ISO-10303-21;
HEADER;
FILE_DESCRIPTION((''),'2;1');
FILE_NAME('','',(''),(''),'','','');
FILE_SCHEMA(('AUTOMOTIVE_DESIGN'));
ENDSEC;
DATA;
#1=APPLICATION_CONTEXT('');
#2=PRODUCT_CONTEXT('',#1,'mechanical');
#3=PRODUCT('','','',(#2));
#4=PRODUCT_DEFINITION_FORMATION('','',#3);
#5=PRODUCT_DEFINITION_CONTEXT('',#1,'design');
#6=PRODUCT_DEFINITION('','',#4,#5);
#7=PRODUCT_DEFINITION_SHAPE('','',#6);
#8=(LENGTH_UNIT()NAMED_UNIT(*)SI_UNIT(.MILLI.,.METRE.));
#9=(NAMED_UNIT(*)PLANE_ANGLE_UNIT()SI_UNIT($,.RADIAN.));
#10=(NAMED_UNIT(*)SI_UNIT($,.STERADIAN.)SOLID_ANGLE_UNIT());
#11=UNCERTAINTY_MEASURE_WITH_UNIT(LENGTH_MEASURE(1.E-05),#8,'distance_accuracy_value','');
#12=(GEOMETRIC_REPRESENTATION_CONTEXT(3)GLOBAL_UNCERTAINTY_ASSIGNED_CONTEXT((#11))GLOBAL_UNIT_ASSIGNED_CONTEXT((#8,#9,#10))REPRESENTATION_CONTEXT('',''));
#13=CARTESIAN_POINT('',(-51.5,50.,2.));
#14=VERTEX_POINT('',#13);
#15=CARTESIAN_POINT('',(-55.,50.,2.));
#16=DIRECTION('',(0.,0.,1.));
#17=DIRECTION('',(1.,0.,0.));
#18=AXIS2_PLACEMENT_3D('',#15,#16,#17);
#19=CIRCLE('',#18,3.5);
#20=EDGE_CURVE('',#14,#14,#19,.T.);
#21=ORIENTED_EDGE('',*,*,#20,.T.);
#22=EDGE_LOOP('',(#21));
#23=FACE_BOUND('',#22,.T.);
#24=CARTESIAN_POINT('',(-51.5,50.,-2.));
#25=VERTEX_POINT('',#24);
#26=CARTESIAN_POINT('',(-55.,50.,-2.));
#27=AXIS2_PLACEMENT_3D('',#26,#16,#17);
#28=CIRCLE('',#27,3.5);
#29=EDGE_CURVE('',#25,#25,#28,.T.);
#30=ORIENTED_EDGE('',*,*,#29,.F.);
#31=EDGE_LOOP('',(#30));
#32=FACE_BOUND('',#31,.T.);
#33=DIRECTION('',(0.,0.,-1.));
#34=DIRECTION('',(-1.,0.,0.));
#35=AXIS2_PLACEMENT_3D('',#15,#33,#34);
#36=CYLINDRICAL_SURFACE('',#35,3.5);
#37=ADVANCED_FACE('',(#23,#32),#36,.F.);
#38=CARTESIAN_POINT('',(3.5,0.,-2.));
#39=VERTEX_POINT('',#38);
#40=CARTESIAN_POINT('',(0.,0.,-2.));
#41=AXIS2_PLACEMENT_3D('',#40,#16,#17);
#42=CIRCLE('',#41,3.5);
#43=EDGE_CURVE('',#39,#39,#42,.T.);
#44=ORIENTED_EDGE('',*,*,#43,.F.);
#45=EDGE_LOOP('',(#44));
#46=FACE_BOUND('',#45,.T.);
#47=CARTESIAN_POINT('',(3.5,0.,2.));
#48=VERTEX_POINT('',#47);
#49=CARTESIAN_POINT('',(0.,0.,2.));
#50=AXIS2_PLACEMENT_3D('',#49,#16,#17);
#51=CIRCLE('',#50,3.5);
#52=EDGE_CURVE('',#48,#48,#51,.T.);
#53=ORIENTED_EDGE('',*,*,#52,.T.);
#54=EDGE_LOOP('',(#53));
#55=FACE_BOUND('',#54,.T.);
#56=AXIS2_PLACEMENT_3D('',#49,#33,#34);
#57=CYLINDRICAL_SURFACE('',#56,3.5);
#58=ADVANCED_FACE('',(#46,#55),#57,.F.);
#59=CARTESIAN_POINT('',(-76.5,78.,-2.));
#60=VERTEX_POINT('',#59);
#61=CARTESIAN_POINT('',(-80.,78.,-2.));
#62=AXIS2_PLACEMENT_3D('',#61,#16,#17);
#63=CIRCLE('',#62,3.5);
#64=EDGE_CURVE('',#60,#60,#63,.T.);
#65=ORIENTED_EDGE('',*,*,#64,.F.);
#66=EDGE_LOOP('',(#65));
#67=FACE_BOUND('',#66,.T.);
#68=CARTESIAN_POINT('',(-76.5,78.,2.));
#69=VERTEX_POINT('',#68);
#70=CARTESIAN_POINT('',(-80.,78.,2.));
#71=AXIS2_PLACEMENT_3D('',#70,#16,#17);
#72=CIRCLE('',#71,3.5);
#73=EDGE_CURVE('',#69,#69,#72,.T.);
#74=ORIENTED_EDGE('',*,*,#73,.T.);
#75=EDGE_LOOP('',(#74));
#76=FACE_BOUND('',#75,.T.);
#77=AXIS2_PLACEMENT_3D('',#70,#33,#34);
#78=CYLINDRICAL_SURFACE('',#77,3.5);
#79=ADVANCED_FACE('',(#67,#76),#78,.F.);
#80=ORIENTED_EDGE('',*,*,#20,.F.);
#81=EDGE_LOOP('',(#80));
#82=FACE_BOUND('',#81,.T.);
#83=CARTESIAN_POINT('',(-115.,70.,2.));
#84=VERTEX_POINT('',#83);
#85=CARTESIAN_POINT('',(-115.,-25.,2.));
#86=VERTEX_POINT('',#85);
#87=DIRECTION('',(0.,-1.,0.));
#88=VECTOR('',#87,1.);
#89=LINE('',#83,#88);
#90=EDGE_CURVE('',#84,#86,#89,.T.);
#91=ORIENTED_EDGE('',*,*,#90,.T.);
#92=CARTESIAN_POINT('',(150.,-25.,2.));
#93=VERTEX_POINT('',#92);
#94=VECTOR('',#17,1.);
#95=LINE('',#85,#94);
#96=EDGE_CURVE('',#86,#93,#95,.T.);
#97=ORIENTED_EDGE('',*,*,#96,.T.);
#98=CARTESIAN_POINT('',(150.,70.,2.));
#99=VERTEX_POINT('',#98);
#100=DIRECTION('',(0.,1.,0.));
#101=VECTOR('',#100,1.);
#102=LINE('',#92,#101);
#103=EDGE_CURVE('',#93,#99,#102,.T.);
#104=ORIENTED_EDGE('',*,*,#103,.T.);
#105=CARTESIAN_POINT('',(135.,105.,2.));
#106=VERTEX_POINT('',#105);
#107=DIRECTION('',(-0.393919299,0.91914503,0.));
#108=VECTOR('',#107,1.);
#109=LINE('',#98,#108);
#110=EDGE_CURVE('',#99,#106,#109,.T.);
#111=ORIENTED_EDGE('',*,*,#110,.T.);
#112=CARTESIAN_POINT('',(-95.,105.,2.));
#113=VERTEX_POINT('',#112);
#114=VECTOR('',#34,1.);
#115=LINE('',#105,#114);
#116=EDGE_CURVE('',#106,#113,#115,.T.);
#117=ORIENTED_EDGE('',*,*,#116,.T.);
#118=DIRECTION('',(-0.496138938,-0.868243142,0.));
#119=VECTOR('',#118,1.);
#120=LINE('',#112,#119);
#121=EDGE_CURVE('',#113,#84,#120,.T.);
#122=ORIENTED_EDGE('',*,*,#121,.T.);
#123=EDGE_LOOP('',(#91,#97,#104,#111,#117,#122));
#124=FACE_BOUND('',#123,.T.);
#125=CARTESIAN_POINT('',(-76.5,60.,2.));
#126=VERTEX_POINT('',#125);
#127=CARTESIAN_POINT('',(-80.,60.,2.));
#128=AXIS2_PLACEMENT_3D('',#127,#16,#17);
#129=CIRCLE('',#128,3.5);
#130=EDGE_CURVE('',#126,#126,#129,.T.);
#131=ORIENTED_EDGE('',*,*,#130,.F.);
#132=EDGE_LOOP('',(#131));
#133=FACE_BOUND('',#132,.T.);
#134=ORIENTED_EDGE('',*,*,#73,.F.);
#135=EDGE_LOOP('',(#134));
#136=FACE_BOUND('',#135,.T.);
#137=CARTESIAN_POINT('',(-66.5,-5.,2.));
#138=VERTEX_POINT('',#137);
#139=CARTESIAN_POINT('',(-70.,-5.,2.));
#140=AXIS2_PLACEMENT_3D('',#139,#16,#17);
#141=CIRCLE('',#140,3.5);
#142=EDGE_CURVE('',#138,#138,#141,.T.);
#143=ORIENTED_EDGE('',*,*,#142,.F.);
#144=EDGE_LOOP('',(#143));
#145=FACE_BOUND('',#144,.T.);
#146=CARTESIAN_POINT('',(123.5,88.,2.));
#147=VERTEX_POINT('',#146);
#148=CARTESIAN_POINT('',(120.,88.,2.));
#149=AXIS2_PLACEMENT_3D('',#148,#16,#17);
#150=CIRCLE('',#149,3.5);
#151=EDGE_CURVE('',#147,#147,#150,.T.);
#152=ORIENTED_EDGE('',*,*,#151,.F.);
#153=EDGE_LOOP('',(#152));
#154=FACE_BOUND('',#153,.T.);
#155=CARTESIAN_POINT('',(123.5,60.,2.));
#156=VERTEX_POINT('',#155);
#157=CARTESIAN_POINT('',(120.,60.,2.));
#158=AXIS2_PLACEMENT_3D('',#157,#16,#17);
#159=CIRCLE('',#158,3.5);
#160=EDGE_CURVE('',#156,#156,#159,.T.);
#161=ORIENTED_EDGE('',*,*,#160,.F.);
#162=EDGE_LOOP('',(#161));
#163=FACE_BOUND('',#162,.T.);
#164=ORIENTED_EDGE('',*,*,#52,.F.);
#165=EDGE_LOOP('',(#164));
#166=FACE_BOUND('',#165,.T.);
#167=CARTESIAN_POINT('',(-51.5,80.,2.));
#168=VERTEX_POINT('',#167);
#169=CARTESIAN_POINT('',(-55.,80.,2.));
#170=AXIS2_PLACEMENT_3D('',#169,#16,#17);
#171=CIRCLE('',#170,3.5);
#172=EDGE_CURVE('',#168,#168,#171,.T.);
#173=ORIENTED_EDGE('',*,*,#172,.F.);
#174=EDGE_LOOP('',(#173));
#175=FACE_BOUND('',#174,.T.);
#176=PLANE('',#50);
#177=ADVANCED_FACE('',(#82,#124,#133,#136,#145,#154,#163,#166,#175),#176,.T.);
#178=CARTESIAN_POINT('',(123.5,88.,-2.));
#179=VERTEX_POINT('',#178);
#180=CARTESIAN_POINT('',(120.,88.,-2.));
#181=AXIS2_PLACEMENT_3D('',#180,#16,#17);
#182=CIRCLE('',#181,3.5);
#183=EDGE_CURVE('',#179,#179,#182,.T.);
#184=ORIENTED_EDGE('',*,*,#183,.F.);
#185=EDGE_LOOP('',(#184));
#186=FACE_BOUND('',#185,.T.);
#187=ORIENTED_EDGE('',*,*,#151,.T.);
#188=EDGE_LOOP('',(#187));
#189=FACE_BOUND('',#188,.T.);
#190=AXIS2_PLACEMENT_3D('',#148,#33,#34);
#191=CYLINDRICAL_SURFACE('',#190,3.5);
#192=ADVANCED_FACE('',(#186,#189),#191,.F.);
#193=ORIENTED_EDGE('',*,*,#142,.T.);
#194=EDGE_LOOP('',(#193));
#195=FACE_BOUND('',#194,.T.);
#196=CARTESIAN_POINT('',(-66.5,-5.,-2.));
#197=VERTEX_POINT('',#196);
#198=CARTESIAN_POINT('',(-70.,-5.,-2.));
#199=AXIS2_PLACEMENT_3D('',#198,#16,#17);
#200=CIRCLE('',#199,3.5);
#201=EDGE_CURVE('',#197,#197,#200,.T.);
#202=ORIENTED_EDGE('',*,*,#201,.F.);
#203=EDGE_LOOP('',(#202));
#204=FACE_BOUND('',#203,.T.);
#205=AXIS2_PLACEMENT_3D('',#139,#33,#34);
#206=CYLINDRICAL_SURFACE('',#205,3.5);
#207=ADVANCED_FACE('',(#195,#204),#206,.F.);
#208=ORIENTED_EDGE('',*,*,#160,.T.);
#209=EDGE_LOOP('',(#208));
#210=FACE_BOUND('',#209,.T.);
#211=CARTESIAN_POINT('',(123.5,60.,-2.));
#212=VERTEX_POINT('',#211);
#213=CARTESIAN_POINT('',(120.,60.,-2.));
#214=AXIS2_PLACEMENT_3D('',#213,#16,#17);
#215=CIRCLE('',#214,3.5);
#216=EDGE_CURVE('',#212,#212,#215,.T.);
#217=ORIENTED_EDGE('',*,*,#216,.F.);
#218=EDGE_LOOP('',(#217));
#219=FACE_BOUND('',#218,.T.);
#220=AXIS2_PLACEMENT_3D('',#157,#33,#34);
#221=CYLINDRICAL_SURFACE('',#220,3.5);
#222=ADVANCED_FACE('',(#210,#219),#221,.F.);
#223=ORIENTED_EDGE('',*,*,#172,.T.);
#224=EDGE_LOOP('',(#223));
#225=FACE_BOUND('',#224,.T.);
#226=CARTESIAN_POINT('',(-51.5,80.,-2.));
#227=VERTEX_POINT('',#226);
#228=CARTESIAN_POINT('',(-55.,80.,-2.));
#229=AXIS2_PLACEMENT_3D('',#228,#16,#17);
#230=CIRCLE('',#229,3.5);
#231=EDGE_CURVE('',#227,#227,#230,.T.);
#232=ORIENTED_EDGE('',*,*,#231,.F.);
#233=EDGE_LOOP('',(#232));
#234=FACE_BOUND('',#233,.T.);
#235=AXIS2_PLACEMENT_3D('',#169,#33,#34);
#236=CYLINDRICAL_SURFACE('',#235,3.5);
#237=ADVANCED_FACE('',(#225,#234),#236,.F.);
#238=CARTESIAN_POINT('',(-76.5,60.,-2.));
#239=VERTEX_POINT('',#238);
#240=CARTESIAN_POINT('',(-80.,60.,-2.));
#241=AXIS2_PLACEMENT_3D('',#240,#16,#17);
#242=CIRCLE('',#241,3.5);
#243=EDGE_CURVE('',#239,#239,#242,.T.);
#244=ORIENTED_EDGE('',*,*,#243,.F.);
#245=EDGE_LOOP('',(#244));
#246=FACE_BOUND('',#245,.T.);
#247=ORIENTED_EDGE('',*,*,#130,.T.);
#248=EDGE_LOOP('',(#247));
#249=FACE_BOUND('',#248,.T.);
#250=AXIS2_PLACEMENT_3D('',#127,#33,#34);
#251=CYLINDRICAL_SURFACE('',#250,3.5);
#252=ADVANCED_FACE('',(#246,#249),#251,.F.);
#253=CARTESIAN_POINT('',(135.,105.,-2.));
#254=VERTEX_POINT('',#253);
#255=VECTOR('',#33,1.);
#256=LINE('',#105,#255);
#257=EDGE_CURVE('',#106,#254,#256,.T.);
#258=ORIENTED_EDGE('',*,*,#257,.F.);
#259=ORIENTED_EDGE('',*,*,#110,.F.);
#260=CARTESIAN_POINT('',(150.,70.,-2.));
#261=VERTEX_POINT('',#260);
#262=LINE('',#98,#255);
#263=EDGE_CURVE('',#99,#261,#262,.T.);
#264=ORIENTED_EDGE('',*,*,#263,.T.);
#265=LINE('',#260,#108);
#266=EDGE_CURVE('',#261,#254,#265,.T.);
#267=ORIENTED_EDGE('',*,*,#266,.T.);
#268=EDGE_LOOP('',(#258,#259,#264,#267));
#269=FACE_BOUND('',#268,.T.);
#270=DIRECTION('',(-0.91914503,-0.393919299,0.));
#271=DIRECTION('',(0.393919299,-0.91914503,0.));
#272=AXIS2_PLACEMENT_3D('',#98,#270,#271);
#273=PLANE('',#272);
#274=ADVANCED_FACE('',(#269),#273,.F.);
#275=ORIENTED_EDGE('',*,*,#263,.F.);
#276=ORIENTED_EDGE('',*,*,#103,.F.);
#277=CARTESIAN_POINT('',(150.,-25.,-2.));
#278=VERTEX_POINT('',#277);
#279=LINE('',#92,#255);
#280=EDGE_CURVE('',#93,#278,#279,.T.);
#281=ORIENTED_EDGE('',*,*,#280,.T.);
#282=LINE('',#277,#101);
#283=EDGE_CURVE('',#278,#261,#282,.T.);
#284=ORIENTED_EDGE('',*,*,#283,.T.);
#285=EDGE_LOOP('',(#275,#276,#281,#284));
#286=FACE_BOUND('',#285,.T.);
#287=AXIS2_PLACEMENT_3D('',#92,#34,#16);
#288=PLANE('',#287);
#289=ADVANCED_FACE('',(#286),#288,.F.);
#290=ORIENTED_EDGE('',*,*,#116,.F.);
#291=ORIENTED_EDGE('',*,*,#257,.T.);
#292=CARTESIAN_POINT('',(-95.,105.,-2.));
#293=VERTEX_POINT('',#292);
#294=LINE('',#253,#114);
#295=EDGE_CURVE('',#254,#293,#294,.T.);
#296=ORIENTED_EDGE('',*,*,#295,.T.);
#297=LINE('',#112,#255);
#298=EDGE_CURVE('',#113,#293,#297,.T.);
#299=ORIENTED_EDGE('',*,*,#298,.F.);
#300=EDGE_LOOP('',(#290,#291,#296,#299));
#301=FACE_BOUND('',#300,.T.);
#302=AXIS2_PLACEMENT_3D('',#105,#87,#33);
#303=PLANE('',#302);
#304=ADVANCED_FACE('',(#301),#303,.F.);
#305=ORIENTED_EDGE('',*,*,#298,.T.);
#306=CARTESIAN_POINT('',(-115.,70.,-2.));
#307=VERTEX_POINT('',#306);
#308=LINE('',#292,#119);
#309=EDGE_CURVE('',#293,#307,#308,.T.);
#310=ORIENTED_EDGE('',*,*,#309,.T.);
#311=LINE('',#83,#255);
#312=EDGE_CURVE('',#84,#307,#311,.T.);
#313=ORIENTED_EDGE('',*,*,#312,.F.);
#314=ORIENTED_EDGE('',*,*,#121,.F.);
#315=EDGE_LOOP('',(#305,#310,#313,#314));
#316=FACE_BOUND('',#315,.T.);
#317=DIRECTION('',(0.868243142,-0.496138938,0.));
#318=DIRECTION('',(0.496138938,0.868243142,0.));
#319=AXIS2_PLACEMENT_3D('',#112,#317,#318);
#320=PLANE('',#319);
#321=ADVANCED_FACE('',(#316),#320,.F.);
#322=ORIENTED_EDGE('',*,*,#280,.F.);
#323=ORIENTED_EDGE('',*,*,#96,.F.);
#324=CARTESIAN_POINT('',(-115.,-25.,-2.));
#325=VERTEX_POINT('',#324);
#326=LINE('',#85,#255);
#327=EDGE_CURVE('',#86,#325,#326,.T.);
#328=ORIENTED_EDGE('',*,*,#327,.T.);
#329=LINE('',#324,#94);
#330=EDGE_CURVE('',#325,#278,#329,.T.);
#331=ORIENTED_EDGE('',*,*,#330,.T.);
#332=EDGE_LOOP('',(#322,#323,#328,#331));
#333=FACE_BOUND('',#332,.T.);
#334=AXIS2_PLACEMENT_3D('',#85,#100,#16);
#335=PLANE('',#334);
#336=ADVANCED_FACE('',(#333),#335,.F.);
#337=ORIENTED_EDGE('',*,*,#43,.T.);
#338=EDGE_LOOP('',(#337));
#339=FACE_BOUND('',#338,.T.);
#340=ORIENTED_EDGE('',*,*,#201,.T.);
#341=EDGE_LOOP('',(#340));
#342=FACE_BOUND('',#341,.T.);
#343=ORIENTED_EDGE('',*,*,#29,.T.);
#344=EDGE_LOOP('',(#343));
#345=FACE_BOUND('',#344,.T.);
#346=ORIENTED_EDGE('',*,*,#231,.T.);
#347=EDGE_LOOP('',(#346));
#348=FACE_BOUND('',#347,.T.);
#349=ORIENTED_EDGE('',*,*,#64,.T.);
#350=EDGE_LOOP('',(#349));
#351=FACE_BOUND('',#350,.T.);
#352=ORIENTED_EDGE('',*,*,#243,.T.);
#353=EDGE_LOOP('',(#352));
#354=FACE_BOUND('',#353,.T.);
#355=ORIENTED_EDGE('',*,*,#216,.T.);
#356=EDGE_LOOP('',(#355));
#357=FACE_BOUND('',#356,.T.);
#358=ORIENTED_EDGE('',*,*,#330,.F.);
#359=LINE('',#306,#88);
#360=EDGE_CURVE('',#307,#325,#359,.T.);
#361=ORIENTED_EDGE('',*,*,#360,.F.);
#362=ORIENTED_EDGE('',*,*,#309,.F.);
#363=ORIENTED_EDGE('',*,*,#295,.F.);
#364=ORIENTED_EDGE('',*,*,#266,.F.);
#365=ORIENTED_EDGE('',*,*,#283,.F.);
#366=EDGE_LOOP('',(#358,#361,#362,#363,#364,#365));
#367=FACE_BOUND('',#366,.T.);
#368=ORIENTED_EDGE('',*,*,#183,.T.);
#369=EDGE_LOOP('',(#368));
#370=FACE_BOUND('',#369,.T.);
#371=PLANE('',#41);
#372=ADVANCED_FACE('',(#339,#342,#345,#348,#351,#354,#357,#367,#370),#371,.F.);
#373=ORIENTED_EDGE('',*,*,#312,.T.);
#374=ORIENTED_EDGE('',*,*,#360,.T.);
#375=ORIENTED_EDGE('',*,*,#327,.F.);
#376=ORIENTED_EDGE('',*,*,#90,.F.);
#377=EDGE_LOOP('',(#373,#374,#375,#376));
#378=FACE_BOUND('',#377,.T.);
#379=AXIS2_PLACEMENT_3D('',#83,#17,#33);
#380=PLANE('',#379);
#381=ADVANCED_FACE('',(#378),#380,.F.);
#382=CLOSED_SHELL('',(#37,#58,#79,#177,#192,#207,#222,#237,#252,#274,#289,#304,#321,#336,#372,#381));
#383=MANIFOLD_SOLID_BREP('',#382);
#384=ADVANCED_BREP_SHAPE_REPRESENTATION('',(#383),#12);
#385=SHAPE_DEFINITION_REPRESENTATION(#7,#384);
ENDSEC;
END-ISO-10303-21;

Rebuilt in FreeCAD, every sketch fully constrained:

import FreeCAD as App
import Part
import Sketcher


def add_polygon(sketch, points):
    """Adds a closed chain of lines whose ends are joined by coincident constraints."""
    first, n = sketch.GeometryCount, len(points)
    for a, b in zip(points, points[1:] + points[:1]):
        sketch.addGeometry(Part.LineSegment(App.Vector(*a, 0), App.Vector(*b, 0)), False)
    for i in range(n):
        sketch.addConstraint(Sketcher.Constraint("Coincident", first + i, 2, first + (i + 1) % n, 1))

doc = App.newDocument("Part")
body = doc.addObject("PartDesign::Body", "Body")

# Sketch on XY plane
sketch1 = body.newObject("Sketcher::SketchObject", "Sketch")
sketch1.AttachmentSupport = (doc.getObject("XY_Plane"), [""])
sketch1.MapMode = "FlatFace"
add_polygon(sketch1, [(-115, -25), (150, -25), (150, 70), (135, 105), (-95, 105), (-115, 70)])  # lines 0-5
sketch1.addGeometry(Part.Circle(App.Vector(-70, -5, 0), App.Vector(0, 0, 1), 3.5), False)  # 6
sketch1.addGeometry(Part.Circle(App.Vector(0, 0, 0), App.Vector(0, 0, 1), 3.5), False)  # 7
sketch1.addGeometry(Part.Circle(App.Vector(-55, 50, 0), App.Vector(0, 0, 1), 3.5), False)  # 8
sketch1.addGeometry(Part.Circle(App.Vector(-80, 60, 0), App.Vector(0, 0, 1), 3.5), False)  # 9
sketch1.addGeometry(Part.Circle(App.Vector(-80, 78, 0), App.Vector(0, 0, 1), 3.5), False)  # 10
sketch1.addGeometry(Part.Circle(App.Vector(-55, 80, 0), App.Vector(0, 0, 1), 3.5), False)  # 11
sketch1.addGeometry(Part.Circle(App.Vector(120, 60, 0), App.Vector(0, 0, 1), 3.5), False)  # 12
sketch1.addGeometry(Part.Circle(App.Vector(120, 88, 0), App.Vector(0, 0, 1), 3.5), False)  # 13
sketch1.addConstraint([
    Sketcher.Constraint("Horizontal", 0),
    Sketcher.Constraint("Vertical", 1),
    Sketcher.Constraint("Horizontal", 3),
    Sketcher.Constraint("Vertical", 5),
    Sketcher.Constraint("Coincident", 7, 3, -1, 1),
    Sketcher.Constraint("Equal", 6, 7),
    Sketcher.Constraint("Equal", 7, 8),
    Sketcher.Constraint("Equal", 8, 9),
    Sketcher.Constraint("Equal", 9, 10),
    Sketcher.Constraint("Equal", 10, 11),
    Sketcher.Constraint("Equal", 11, 12),
    Sketcher.Constraint("Equal", 12, 13),
    Sketcher.Constraint("Horizontal", 9, 3, 12, 3),
    Sketcher.Constraint("Horizontal", 1, 2, 4, 2),
    Sketcher.Constraint("Vertical", 9, 3, 10, 3),
    Sketcher.Constraint("Vertical", 8, 3, 11, 3),
    Sketcher.Constraint("Vertical", 12, 3, 13, 3),
    Sketcher.Constraint("Diameter", 6, 7.0),
    Sketcher.Constraint("DistanceX", 0, 1, 0, 2, 265.0),
    Sketcher.Constraint("DistanceX", 3, 2, 3, 1, 230.0),
    Sketcher.Constraint("DistanceY", 1, 1, 1, 2, 95.0),
    Sketcher.Constraint("DistanceX", 6, 3, -1, 1, 70.0),
    Sketcher.Constraint("DistanceY", 6, 3, -1, 1, 5.0),
    Sketcher.Constraint("DistanceX", 8, 3, -1, 1, 55.0),
    Sketcher.Constraint("DistanceY", -1, 1, 8, 3, 50.0),
    Sketcher.Constraint("DistanceX", 9, 3, -1, 1, 80.0),
    Sketcher.Constraint("DistanceY", -1, 1, 9, 3, 60.0),
    Sketcher.Constraint("DistanceY", -1, 1, 10, 3, 78.0),
    Sketcher.Constraint("DistanceY", -1, 1, 11, 3, 80.0),
    Sketcher.Constraint("DistanceX", -1, 1, 12, 3, 120.0),
    Sketcher.Constraint("DistanceY", -1, 1, 13, 3, 88.0),
    Sketcher.Constraint("DistanceX", -1, 1, 0, 2, 150.0),
    Sketcher.Constraint("DistanceY", 0, 2, -1, 1, 25.0),
    Sketcher.Constraint("DistanceX", -1, 1, 2, 2, 135.0),
    Sketcher.Constraint("DistanceY", -1, 1, 2, 2, 105.0),
])
pad1 = body.newObject("PartDesign::Pad", "Pad")
pad1.Profile = sketch1
pad1.Length = 4
pad1.Midplane = True

doc.recompute()
